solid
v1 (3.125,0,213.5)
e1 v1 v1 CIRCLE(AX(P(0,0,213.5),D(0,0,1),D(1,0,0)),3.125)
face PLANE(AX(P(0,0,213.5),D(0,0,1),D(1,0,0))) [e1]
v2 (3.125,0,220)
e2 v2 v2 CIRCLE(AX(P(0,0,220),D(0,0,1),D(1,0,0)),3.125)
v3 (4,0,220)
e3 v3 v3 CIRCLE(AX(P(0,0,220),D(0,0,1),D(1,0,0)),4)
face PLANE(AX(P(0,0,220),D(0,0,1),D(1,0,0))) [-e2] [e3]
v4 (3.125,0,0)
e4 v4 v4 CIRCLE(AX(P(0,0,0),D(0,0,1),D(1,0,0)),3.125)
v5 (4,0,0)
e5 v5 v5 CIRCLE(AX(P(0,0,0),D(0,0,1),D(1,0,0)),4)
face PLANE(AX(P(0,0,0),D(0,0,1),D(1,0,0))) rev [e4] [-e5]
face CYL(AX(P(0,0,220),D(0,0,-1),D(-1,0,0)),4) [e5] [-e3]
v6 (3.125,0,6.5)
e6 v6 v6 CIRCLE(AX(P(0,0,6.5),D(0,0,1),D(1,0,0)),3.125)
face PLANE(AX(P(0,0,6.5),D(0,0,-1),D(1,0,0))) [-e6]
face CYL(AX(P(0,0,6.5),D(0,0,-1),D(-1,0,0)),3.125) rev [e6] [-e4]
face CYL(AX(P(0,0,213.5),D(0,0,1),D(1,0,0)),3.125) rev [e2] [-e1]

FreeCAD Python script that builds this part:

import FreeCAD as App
import Part
import Sketcher

V = App.Vector
Q = App.Units.Quantity

doc = App.newDocument("Part")
params = doc.addObject("Spreadsheet::Sheet", "Params")
for row, (alias, value) in enumerate([
    ("sketch1_diameter", "8 mm"),
    ("pad1_length", "220 mm"),
    ("sketch2_diameter", "6.25 mm"),
    ("pocket1_length", "6.5 mm"),
], start=1):
    params.set(f"A{row}", alias)
    params.set(f"B{row}", "=" + value)
    params.setAlias(f"B{row}", alias)

body = doc.addObject("PartDesign::Body", "Body")

# Sketch on XY plane
sketch1 = body.newObject("Sketcher::SketchObject", "Sketch")
sketch1.AttachmentSupport = (doc.getObject("XY_Plane"), [""])
sketch1.MapMode = "FlatFace"
sketch1.addGeometry(Part.Circle(V(0, 0, 0), V(0, 0, 1), 4), False)
sketch1.addConstraint([
    Sketcher.Constraint("Coincident", 0, 3, -1, 1),
    Sketcher.Constraint("Diameter", 0, Q("8 mm")),
])
sketch1.setExpression("Constraints[1]", "Params.sketch1_diameter")
pad1 = body.newObject("PartDesign::Pad", "Pad")
pad1.Profile = sketch1
pad1.setExpression("Length", "Params.pad1_length")

# Sketch on XY plane
sketch2 = body.newObject("Sketcher::SketchObject", "Sketch001")
sketch2.AttachmentSupport = (doc.getObject("XY_Plane"), [""])
sketch2.MapMode = "FlatFace"
sketch2.AttachmentOffset = App.Placement(V(0, 0, 220), App.Rotation())
sketch2.addGeometry(Part.Circle(V(0, 0, 0), V(0, 0, 1), 3.1), False)
sketch2.addConstraint([
    Sketcher.Constraint("Coincident", 0, 3, -1, 1),
    Sketcher.Constraint("Diameter", 0, Q("6.25 mm")),
])
sketch2.setExpression("Constraints[1]", "Params.sketch2_diameter")
pocket1 = body.newObject("PartDesign::Pocket", "Pocket")
pocket1.Profile = sketch2
pocket1.setExpression("Length", "Params.pocket1_length")
doc.recompute()

datumplane = body.newObject("PartDesign::Plane", "DatumPlane")
datumplane.AttachmentSupport = (doc.getObject("XY_Plane"), [""])
datumplane.MapMode = "FlatFace"
datumplane.AttachmentOffset = App.Placement(V(0, 0, 110), App.Rotation())
mirrored = body.newObject("PartDesign::Mirrored", "Mirrored")
mirrored.Originals = [pocket1]
mirrored.MirrorPlane = (datumplane, [""])
body.Tip = mirrored

doc.recompute()
